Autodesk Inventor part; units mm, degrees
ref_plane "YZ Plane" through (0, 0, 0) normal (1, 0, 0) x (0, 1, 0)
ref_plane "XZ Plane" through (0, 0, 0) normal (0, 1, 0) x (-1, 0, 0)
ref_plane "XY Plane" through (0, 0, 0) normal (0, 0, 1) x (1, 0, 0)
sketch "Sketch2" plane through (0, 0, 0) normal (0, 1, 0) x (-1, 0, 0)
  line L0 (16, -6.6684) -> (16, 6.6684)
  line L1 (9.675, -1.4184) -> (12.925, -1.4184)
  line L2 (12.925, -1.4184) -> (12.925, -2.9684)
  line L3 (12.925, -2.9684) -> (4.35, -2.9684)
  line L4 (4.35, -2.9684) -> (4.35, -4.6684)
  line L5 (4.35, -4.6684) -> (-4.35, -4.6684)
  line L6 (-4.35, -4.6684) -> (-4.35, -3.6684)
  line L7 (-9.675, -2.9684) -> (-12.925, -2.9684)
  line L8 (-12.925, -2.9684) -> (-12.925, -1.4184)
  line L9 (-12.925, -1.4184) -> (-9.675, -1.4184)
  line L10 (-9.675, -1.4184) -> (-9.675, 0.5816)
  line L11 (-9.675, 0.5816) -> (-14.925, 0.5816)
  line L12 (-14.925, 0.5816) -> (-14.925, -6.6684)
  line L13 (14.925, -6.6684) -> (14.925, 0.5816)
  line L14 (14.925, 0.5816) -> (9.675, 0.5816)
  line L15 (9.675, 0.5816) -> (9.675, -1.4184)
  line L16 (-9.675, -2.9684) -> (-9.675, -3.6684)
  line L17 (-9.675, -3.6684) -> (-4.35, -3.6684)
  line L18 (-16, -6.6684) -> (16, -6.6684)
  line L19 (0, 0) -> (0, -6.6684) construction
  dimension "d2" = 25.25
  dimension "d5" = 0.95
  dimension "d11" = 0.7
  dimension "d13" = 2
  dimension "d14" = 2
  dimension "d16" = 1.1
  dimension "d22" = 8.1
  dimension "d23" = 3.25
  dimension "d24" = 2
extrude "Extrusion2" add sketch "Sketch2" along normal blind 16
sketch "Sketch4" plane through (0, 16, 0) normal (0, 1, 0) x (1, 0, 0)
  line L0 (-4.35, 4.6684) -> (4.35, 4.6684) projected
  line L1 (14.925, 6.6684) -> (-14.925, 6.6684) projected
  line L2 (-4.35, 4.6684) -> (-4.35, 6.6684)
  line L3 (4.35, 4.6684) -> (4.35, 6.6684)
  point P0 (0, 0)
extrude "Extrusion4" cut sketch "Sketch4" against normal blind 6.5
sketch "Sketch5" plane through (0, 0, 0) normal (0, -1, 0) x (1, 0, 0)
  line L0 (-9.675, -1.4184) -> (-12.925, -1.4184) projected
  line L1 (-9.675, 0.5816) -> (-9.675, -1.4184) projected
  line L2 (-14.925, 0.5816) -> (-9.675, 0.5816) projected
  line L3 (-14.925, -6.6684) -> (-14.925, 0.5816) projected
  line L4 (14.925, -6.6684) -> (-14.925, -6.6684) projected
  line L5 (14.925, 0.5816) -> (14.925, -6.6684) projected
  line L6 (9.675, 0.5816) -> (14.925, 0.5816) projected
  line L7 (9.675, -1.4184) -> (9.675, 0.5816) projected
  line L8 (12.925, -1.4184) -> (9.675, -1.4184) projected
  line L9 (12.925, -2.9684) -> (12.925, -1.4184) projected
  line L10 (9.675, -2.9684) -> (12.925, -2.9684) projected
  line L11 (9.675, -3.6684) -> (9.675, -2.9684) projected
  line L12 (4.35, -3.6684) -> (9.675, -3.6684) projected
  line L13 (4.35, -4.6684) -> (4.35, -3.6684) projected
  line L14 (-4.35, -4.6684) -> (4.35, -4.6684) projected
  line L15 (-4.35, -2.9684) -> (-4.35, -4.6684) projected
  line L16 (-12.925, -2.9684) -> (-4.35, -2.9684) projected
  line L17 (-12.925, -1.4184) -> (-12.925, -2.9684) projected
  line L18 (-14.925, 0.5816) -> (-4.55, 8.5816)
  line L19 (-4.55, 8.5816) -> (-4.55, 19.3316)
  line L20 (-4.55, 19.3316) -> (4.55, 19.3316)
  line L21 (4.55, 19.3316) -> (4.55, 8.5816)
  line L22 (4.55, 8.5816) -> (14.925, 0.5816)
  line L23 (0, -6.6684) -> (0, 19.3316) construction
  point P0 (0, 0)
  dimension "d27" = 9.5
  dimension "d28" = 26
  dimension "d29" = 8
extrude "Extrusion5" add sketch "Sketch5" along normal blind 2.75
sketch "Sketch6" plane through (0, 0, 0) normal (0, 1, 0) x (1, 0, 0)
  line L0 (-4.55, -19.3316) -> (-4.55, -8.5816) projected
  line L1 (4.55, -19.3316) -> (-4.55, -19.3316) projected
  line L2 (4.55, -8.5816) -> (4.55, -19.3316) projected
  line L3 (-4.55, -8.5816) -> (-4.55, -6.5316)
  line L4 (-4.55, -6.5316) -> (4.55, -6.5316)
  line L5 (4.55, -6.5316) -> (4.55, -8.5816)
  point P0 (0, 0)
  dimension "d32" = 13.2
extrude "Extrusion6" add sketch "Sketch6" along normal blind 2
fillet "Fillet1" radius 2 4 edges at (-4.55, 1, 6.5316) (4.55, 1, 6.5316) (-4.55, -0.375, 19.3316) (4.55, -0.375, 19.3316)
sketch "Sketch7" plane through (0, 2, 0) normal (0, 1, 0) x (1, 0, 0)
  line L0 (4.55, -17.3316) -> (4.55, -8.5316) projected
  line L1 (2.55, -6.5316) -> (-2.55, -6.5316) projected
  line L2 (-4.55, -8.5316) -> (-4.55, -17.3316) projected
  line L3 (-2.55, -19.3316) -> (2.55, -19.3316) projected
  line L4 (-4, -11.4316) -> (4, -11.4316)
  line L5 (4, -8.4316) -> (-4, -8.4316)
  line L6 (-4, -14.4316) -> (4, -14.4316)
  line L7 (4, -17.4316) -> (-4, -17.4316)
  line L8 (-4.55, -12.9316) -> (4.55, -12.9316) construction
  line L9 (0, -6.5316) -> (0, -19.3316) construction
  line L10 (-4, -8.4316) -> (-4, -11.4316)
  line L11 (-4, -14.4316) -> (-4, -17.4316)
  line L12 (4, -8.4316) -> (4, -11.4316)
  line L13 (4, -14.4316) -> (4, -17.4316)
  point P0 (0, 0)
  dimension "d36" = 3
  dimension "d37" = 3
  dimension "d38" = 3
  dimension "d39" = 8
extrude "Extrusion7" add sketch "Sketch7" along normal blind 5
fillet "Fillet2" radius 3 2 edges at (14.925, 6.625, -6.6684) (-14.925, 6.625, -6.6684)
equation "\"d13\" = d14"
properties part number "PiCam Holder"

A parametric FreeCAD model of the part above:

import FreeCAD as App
import Part
import Sketcher
from FreeCAD import Vector


def edges_at(feature, points):
    """Names of the edges that pass closest to the given points."""
    edges = feature.Shape.Edges
    near = lambda p: min(range(len(edges)), key=lambda i: edges[i].distToShape(Part.Vertex(*p))[0])
    return sorted({f"Edge{near(p) + 1}" for p in points})


def add_polygon(sketch, points):
    """Adds a closed chain of lines whose ends are joined by coincident constraints."""
    first, n = sketch.GeometryCount, len(points)
    for a, b in zip(points, points[1:] + points[:1]):
        sketch.addGeometry(Part.LineSegment(App.Vector(*a, 0), App.Vector(*b, 0)), False)
    for i in range(n):
        sketch.addConstraint(Sketcher.Constraint("Coincident", first + i, 2, first + (i + 1) % n, 1))

doc = App.newDocument("Part")
params = doc.addObject("Spreadsheet::Sheet", "Params")
for row, (alias, value) in enumerate([
    ("sketch1_height", "2 mm"),
    ("sketch1_height2", "0.7 mm"),
    ("sketch1_width", "3.25 mm"),
    ("sketch1_height3", "1 mm"),
    ("sketch1_width2", "8.7 mm"),
    ("pad1_length", "16 mm"),
    ("sketch2_height", "2 mm"),
    ("sketch2_width", "8.7 mm"),
    ("pocket1_length", "6.5 mm"),
    ("sketch3_width", "9.1 mm"),
    ("sketch3_width2", "29.85 mm"),
    ("sketch3_height", "7.25 mm"),
    ("pad2_length", "2.75 mm"),
    ("sketch4_width", "9.1 mm"),
    ("sketch4_height", "12.8 mm"),
    ("pad3_length", "2 mm"),
    ("fillet_radius", "2 mm"),
    ("sketch5_width", "8 mm"),
    ("sketch5_height", "3 mm"),
    ("pad4_length", "5 mm"),
    ("fillet2_radius", "3 mm"),
], start=1):
    params.set(f"A{row}", alias)
    params.set(f"B{row}", "=" + value)
    params.setAlias(f"B{row}", alias)

body = doc.addObject("PartDesign::Body", "Body")

# Sketch on XZ plane
sketch1 = body.newObject("Sketcher::SketchObject", "Sketch")
sketch1.AttachmentSupport = (doc.getObject("XZ_Plane"), [""])
sketch1.MapMode = "FlatFace"
add_polygon(sketch1, [(-9.7, 0.6), (-9.7, -1.4), (-12.9, -1.4), (-12.9, -3), (-4.3, -3), (-4.3, -4.7), (4.3, -4.7), (4.3, -3.7), (9.7, -3.7), (9.7, -3), (12.9, -3), (12.9, -1.4), (9.7, -1.4), (9.7, 0.6), (14.9, 0.6), (14.9, -6.7), (-14.9, -6.7), (-14.9, 0.6)])  # lines 0-17
sketch1.addConstraint([
    Sketcher.Constraint("Vertical", 0),
    Sketcher.Constraint("Horizontal", 1),
    Sketcher.Constraint("Vertical", 2),
    Sketcher.Constraint("Horizontal", 3),
    Sketcher.Constraint("Vertical", 4),
    Sketcher.Constraint("Horizontal", 5),
    Sketcher.Constraint("Vertical", 6),
    Sketcher.Constraint("Horizontal", 7),
    Sketcher.Constraint("Vertical", 8),
    Sketcher.Constraint("Horizontal", 9),
    Sketcher.Constraint("Vertical", 10),
    Sketcher.Constraint("Horizontal", 11),
    Sketcher.Constraint("Vertical", 12),
    Sketcher.Constraint("Horizontal", 13),
    Sketcher.Constraint("Vertical", 14),
    Sketcher.Constraint("Horizontal", 15),
    Sketcher.Constraint("Vertical", 16),
    Sketcher.Constraint("Horizontal", 17),
    Sketcher.Constraint("Symmetric", 2, 2, 9, 2, -2),
    Sketcher.Constraint("Symmetric", 0, 2, 11, 2, -2),
    Sketcher.Constraint("Symmetric", 13, 2, 16, 2, -2),
    Sketcher.Constraint("Vertical", 8, 2, 11, 2),
    Sketcher.Constraint("DistanceY", 0, 2, 0, 1, 2.0),
    Sketcher.Constraint("DistanceY", 8, 1, 8, 2, 0.7),
    Sketcher.Constraint("DistanceX", 10, 2, 13, 2, 2.0),
    Sketcher.Constraint("DistanceY", 15, 2, 4, 2, 2.0),
    Sketcher.Constraint("DistanceX", 1, 2, 1, 1, 3.25),
    Sketcher.Constraint("DistanceY", 6, 1, 6, 2, 1.0),
    Sketcher.Constraint("DistanceY", 4, 2, 0, 2, 3.25),
    Sketcher.Constraint("DistanceX", 5, 1, 5, 2, 8.7),
    Sketcher.Constraint("DistanceX", 15, 2, 15, 1, 29.85),
    Sketcher.Constraint("DistanceX", 3, 1, 3, 2, 8.575),
    Sketcher.Constraint("DistanceY", 0, 2, -1, 1, 1.4184),
])
sketch1.setExpression("Constraints[40]", "Params.sketch1_height")
sketch1.setExpression("Constraints[41]", "Params.sketch1_height2")
sketch1.setExpression("Constraints[44]", "Params.sketch1_width")
sketch1.setExpression("Constraints[45]", "Params.sketch1_height3")
sketch1.setExpression("Constraints[47]", "Params.sketch1_width2")
pad1 = body.newObject("PartDesign::Pad", "Pad")
pad1.Profile = sketch1
pad1.setExpression("Length", "Params.pad1_length")
pad1.Reversed = True

# Sketch on XZ plane
sketch2 = body.newObject("Sketcher::SketchObject", "Sketch001")
sketch2.AttachmentSupport = (doc.getObject("XZ_Plane"), [""])
sketch2.MapMode = "FlatFace"
sketch2.AttachmentOffset = App.Placement(Vector(0, 0, -16), App.Rotation())
add_polygon(sketch2, [(-4.3, -6.7), (-4.3, -4.7), (4.3, -4.7), (4.3, -6.7)])  # lines 0-3
sketch2.addConstraint([
    Sketcher.Constraint("Vertical", 0),
    Sketcher.Constraint("Horizontal", 1),
    Sketcher.Constraint("Vertical", 2),
    Sketcher.Constraint("Horizontal", 3),
    Sketcher.Constraint("DistanceY", 0, 1, 0, 2, 2.0),
    Sketcher.Constraint("DistanceX", 1, 1, 1, 2, 8.7),
    Sketcher.Constraint("DistanceX", 0, 2, -1, 1, 4.35),
    Sketcher.Constraint("DistanceY", 0, 2, -1, 1, 4.6684),
])
sketch2.setExpression("Constraints[8]", "Params.sketch2_height")
sketch2.setExpression("Constraints[9]", "Params.sketch2_width")
pocket1 = body.newObject("PartDesign::Pocket", "Pocket")
pocket1.Profile = sketch2
pocket1.setExpression("Length", "Params.pocket1_length")
pocket1.Reversed = True

# Sketch on XZ plane
sketch3 = body.newObject("Sketcher::SketchObject", "Sketch002")
sketch3.AttachmentSupport = (doc.getObject("XZ_Plane"), [""])
sketch3.MapMode = "FlatFace"
add_polygon(sketch3, [(-5, 9), (-15, 1), (-15, -7), (15, -7), (15, 1), (5, 9), (5, 19), (-5, 19)])  # lines 0-7
sketch3.addConstraint([
    Sketcher.Constraint("Vertical", 1),
    Sketcher.Constraint("Horizontal", 2),
    Sketcher.Constraint("Vertical", 3),
    Sketcher.Constraint("Vertical", 5),
    Sketcher.Constraint("Horizontal", 6),
    Sketcher.Constraint("Vertical", 7),
    Sketcher.Constraint("Symmetric", 0, 2, 3, 2, -2),
    Sketcher.Constraint("Symmetric", 4, 2, 7, 2, -2),
    Sketcher.Constraint("DistanceY", 3, 2, 4, 2, 8.0),
    Sketcher.Constraint("DistanceY", 2, 2, 5, 2, 26.0),
    Sketcher.Constraint("DistanceX", 6, 2, 6, 1, 9.1),
    Sketcher.Constraint("DistanceX", 2, 1, 2, 2, 29.85),
    Sketcher.Constraint("DistanceY", 1, 2, 1, 1, 7.25),
    Sketcher.Constraint("DistanceY", -1, 1, 0, 2, 0.5816),
])
sketch3.setExpression("Constraints[18]", "Params.sketch3_width")
sketch3.setExpression("Constraints[19]", "Params.sketch3_width2")
sketch3.setExpression("Constraints[20]", "Params.sketch3_height")
pad2 = body.newObject("PartDesign::Pad", "Pad001")
pad2.Profile = sketch3
pad2.setExpression("Length", "Params.pad2_length")

# Sketch on XZ plane
sketch4 = body.newObject("Sketcher::SketchObject", "Sketch003")
sketch4.AttachmentSupport = (doc.getObject("XZ_Plane"), [""])
sketch4.MapMode = "FlatFace"
add_polygon(sketch4, [(-5, 7), (-5, 19), (5, 19), (5, 7)])  # lines 0-3
sketch4.addConstraint([
    Sketcher.Constraint("Vertical", 0),
    Sketcher.Constraint("Horizontal", 1),
    Sketcher.Constraint("Vertical", 2),
    Sketcher.Constraint("Horizontal", 3),
    Sketcher.Constraint("DistanceX", 1, 1, 1, 2, 9.1),
    Sketcher.Constraint("DistanceY", 0, 1, 0, 2, 12.8),
    Sketcher.Constraint("DistanceX", 0, 2, -1, 1, 4.55),
    Sketcher.Constraint("DistanceY", -1, 1, 0, 2, 19.3316),
])
sketch4.setExpression("Constraints[8]", "Params.sketch4_width")
sketch4.setExpression("Constraints[9]", "Params.sketch4_height")
pad3 = body.newObject("PartDesign::Pad", "Pad002")
pad3.Profile = sketch4
pad3.setExpression("Length", "Params.pad3_length")
pad3.Reversed = True
doc.recompute()

fillet = body.newObject("PartDesign::Fillet", "Fillet")
fillet.Base = (pad3, edges_at(pad3, [
    (-4.55, 1, 6.532),
    (4.55, 1, 6.532),
    (-4.55, -0.375, 19.332),
    (4.55, -0.375, 19.332),
]))
fillet.setExpression("Radius", "Params.fillet_radius")

# Sketch on XZ plane
sketch5 = body.newObject("Sketcher::SketchObject", "Sketch004")
sketch5.AttachmentSupport = (doc.getObject("XZ_Plane"), [""])
sketch5.MapMode = "FlatFace"
sketch5.AttachmentOffset = App.Placement(Vector(0, 0, -2), App.Rotation())
add_polygon(sketch5, [(-4, 8.4), (-4, 11.4), (4, 11.4), (4, 8.4)])  # lines 0-3
add_polygon(sketch5, [(4, 14.4), (-4, 14.4), (-4, 17.4), (4, 17.4)])  # lines 4-7
sketch5.addConstraint([
    Sketcher.Constraint("Vertical", 0),
    Sketcher.Constraint("Horizontal", 1),
    Sketcher.Constraint("Vertical", 2),
    Sketcher.Constraint("Horizontal", 3),
    Sketcher.Constraint("Horizontal", 4),
    Sketcher.Constraint("Vertical", 5),
    Sketcher.Constraint("Horizontal", 6),
    Sketcher.Constraint("Vertical", 7),
    Sketcher.Constraint("Vertical", 3, 2, 4, 2),
    Sketcher.Constraint("Vertical", 2, 2, 6, 2),
    Sketcher.Constraint("Equal", 2, 5),
    Sketcher.Constraint("DistanceX", 1, 1, 1, 2, 8.0),
    Sketcher.Constraint("DistanceY", 0, 1, 0, 2, 3.0),
    Sketcher.Constraint("DistanceY", 0, 2, 4, 2, 3.0),
    Sketcher.Constraint("DistanceX", 0, 2, -1, 1, 4.0),
    Sketcher.Constraint("DistanceY", -1, 1, 0, 2, 11.4316),
])
sketch5.setExpression("Constraints[19]", "Params.sketch5_width")
sketch5.setExpression("Constraints[20]", "Params.sketch5_height")
pad4 = body.newObject("PartDesign::Pad", "Pad003")
pad4.Profile = sketch5
pad4.setExpression("Length", "Params.pad4_length")
pad4.Reversed = True
doc.recompute()

fillet2 = body.newObject("PartDesign::Fillet", "Fillet001")
fillet2.Base = (pad4, edges_at(pad4, [(14.925, 6.625, -6.668), (-14.925, 6.625, -6.668)]))
fillet2.setExpression("Radius", "Params.fillet2_radius")

doc.recompute()
